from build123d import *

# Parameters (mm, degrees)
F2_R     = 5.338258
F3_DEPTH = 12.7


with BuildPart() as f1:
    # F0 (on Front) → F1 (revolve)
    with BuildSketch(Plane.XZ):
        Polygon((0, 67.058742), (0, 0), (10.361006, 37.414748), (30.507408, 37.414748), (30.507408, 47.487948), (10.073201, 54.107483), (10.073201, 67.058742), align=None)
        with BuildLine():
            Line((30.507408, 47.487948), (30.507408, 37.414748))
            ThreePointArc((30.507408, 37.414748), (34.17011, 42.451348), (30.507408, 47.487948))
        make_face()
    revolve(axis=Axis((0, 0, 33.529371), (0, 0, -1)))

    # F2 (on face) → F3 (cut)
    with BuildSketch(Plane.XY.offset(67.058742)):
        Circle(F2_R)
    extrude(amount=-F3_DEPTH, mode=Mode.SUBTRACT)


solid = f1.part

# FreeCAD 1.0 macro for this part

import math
import FreeCAD as App
import Part
import Sketcher
from FreeCAD import Vector
Q = App.Units.Quantity

doc = App.newDocument("Part")
params = doc.addObject("Spreadsheet::Sheet", "Params")
for row, (alias, value) in enumerate([
    ("revolution_angle", "360 deg"),
    ("pocket1_length", "0.5 in"),
], start=1):
    params.set(f"A{row}", alias)
    params.set(f"B{row}", "=" + value)
    params.setAlias(f"B{row}", alias)

body = doc.addObject("PartDesign::Body", "Body")

# Sketch on XZ plane
sketch1 = body.newObject("Sketcher::SketchObject", "Sketch")
sketch1.AttachmentSupport = (doc.getObject("XZ_Plane"), [""])
sketch1.MapMode = "FlatFace"
sketch1.addGeometry([
    Part.LineSegment(Vector(0, 67.058742, 0), Vector(0, 0, 0)),  # 0
    Part.LineSegment(Vector(0, 0, 0), Vector(10.361006, 37.414748, 0)),  # 1
    Part.LineSegment(Vector(10.361006, 37.414748, 0), Vector(30.507408, 37.414748, 0)),  # 2
    Part.ArcOfCircle(Part.Circle(Vector(28.875832, 42.451348, 0), Vector(0, 0, 1), 5.294278), math.radians(-72.050583), math.radians(72.050583)),  # 3
    Part.LineSegment(Vector(30.507408, 47.487948, 0), Vector(10.073201, 54.107483, 0)),  # 4
    Part.LineSegment(Vector(10.073201, 54.107483, 0), Vector(10.073201, 67.058742, 0)),  # 5
    Part.LineSegment(Vector(10.073201, 67.058742, 0), Vector(0, 67.058742, 0)),  # 6
], False)
sketch1.addConstraint([
    Sketcher.Constraint("Coincident", 0, 2, 1, 1),
    Sketcher.Constraint("Coincident", 1, 2, 2, 1),
    Sketcher.Constraint("Coincident", 2, 2, 3, 1),
    Sketcher.Constraint("Coincident", 3, 2, 4, 1),
    Sketcher.Constraint("Coincident", 4, 2, 5, 1),
    Sketcher.Constraint("Coincident", 5, 2, 6, 1),
    Sketcher.Constraint("Coincident", 6, 2, 0, 1),
    Sketcher.Constraint("Vertical", 0),
    Sketcher.Constraint("Horizontal", 2),
    Sketcher.Constraint("Vertical", 5),
    Sketcher.Constraint("Horizontal", 6),
    Sketcher.Constraint("Coincident", 0, 2, -1, 1),
    Sketcher.Constraint("Radius", 3, Q("5.294278 mm")),
    Sketcher.Constraint("DistanceX", 6, 2, 6, 1, Q("10.073201 mm")),
    Sketcher.Constraint("DistanceY", 0, 2, 0, 1, Q("67.058742 mm")),
    Sketcher.Constraint("DistanceY", 5, 1, 5, 2, Q("12.951259 mm")),
    Sketcher.Constraint("DistanceY", 1, 2, 3, 3, Q("5.0366 mm")),
    Sketcher.Constraint("DistanceY", 3, 3, 3, 2, Q("5.0366 mm")),
    Sketcher.Constraint("Distance", 1, Q("38.822852 mm")),
    Sketcher.Constraint("DistanceX", 2, 1, 2, 2, Q("20.146402 mm")),
    Sketcher.Constraint("DistanceX", -1, 1, 3, 3, Q("28.875832 mm")),
])
revolution = body.newObject("PartDesign::Revolution", "Revolution")
revolution.Profile = sketch1
revolution.ReferenceAxis = (sketch1, ["V_Axis"])
revolution.setExpression("Angle", "Params.revolution_angle")

# Sketch on XY plane
sketch2 = body.newObject("Sketcher::SketchObject", "Sketch001")
sketch2.AttachmentSupport = (doc.getObject("XY_Plane"), [""])
sketch2.MapMode = "FlatFace"
sketch2.AttachmentOffset = App.Placement(Vector(0, 0, 67.058742), App.Rotation())
sketch2.addGeometry(Part.Circle(Vector(0, 0, 0), Vector(0, 0, 1), 5.338258), False)
sketch2.addConstraint([
    Sketcher.Constraint("Coincident", 0, 3, -1, 1),
    Sketcher.Constraint("Diameter", 0, Q("10.676516 mm")),
])
pocket1 = body.newObject("PartDesign::Pocket", "Pocket")
pocket1.Profile = sketch2
pocket1.setExpression("Length", "Params.pocket1_length")

doc.recompute()
